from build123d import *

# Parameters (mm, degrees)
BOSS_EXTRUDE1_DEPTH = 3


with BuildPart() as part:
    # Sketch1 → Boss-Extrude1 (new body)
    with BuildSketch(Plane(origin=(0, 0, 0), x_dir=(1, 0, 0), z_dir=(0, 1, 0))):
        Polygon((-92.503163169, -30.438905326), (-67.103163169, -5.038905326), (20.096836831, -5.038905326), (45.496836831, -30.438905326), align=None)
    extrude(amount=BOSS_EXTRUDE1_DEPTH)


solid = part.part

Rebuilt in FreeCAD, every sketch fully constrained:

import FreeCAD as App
import Part
import Sketcher
from FreeCAD import Vector


def add_polygon(sketch, points):
    """Adds a closed chain of lines whose ends are joined by coincident constraints."""
    first, n = sketch.GeometryCount, len(points)
    for a, b in zip(points, points[1:] + points[:1]):
        sketch.addGeometry(Part.LineSegment(App.Vector(*a, 0), App.Vector(*b, 0)), False)
    for i in range(n):
        sketch.addConstraint(Sketcher.Constraint("Coincident", first + i, 2, first + (i + 1) % n, 1))

doc = App.newDocument("Part")
body = doc.addObject("PartDesign::Body", "Body")

# Sketch on XZ plane
sketch1 = body.newObject("Sketcher::SketchObject", "Sketch")
sketch1.AttachmentSupport = (doc.getObject("XZ_Plane"), [""])
sketch1.MapMode = "FlatFace"
add_polygon(sketch1, [(-67, 5), (-93, 30), (45, 30), (20, 5)])  # lines 0-3
sketch1.addConstraint(Sketcher.Constraint("Horizontal", 1))
sketch1.addConstraint(Sketcher.Constraint("Horizontal", 3))
sketch1.addConstraint(Sketcher.Constraint("Perpendicular", 0, 2))
sketch1.addConstraint(Sketcher.Constraint("Equal", 0, 2))
sketch1.addConstraint(Sketcher.Constraint("DistanceX", 1, 1, 1, 2, 138.0))
sketch1.addConstraint(Sketcher.Constraint("DistanceX", 3, 2, 3, 1, 87.2))
sketch1.addConstraint(Sketcher.Constraint("DistanceX", 0, 2, -1, 1, 92.503163))
sketch1.addConstraint(Sketcher.Constraint("DistanceY", -1, 1, 0, 2, 30.438905))
pad1 = body.newObject("PartDesign::Pad", "Pad")
pad1.Profile = sketch1
pad1.Length = 3
pad1.Reversed = True

doc.recompute()
